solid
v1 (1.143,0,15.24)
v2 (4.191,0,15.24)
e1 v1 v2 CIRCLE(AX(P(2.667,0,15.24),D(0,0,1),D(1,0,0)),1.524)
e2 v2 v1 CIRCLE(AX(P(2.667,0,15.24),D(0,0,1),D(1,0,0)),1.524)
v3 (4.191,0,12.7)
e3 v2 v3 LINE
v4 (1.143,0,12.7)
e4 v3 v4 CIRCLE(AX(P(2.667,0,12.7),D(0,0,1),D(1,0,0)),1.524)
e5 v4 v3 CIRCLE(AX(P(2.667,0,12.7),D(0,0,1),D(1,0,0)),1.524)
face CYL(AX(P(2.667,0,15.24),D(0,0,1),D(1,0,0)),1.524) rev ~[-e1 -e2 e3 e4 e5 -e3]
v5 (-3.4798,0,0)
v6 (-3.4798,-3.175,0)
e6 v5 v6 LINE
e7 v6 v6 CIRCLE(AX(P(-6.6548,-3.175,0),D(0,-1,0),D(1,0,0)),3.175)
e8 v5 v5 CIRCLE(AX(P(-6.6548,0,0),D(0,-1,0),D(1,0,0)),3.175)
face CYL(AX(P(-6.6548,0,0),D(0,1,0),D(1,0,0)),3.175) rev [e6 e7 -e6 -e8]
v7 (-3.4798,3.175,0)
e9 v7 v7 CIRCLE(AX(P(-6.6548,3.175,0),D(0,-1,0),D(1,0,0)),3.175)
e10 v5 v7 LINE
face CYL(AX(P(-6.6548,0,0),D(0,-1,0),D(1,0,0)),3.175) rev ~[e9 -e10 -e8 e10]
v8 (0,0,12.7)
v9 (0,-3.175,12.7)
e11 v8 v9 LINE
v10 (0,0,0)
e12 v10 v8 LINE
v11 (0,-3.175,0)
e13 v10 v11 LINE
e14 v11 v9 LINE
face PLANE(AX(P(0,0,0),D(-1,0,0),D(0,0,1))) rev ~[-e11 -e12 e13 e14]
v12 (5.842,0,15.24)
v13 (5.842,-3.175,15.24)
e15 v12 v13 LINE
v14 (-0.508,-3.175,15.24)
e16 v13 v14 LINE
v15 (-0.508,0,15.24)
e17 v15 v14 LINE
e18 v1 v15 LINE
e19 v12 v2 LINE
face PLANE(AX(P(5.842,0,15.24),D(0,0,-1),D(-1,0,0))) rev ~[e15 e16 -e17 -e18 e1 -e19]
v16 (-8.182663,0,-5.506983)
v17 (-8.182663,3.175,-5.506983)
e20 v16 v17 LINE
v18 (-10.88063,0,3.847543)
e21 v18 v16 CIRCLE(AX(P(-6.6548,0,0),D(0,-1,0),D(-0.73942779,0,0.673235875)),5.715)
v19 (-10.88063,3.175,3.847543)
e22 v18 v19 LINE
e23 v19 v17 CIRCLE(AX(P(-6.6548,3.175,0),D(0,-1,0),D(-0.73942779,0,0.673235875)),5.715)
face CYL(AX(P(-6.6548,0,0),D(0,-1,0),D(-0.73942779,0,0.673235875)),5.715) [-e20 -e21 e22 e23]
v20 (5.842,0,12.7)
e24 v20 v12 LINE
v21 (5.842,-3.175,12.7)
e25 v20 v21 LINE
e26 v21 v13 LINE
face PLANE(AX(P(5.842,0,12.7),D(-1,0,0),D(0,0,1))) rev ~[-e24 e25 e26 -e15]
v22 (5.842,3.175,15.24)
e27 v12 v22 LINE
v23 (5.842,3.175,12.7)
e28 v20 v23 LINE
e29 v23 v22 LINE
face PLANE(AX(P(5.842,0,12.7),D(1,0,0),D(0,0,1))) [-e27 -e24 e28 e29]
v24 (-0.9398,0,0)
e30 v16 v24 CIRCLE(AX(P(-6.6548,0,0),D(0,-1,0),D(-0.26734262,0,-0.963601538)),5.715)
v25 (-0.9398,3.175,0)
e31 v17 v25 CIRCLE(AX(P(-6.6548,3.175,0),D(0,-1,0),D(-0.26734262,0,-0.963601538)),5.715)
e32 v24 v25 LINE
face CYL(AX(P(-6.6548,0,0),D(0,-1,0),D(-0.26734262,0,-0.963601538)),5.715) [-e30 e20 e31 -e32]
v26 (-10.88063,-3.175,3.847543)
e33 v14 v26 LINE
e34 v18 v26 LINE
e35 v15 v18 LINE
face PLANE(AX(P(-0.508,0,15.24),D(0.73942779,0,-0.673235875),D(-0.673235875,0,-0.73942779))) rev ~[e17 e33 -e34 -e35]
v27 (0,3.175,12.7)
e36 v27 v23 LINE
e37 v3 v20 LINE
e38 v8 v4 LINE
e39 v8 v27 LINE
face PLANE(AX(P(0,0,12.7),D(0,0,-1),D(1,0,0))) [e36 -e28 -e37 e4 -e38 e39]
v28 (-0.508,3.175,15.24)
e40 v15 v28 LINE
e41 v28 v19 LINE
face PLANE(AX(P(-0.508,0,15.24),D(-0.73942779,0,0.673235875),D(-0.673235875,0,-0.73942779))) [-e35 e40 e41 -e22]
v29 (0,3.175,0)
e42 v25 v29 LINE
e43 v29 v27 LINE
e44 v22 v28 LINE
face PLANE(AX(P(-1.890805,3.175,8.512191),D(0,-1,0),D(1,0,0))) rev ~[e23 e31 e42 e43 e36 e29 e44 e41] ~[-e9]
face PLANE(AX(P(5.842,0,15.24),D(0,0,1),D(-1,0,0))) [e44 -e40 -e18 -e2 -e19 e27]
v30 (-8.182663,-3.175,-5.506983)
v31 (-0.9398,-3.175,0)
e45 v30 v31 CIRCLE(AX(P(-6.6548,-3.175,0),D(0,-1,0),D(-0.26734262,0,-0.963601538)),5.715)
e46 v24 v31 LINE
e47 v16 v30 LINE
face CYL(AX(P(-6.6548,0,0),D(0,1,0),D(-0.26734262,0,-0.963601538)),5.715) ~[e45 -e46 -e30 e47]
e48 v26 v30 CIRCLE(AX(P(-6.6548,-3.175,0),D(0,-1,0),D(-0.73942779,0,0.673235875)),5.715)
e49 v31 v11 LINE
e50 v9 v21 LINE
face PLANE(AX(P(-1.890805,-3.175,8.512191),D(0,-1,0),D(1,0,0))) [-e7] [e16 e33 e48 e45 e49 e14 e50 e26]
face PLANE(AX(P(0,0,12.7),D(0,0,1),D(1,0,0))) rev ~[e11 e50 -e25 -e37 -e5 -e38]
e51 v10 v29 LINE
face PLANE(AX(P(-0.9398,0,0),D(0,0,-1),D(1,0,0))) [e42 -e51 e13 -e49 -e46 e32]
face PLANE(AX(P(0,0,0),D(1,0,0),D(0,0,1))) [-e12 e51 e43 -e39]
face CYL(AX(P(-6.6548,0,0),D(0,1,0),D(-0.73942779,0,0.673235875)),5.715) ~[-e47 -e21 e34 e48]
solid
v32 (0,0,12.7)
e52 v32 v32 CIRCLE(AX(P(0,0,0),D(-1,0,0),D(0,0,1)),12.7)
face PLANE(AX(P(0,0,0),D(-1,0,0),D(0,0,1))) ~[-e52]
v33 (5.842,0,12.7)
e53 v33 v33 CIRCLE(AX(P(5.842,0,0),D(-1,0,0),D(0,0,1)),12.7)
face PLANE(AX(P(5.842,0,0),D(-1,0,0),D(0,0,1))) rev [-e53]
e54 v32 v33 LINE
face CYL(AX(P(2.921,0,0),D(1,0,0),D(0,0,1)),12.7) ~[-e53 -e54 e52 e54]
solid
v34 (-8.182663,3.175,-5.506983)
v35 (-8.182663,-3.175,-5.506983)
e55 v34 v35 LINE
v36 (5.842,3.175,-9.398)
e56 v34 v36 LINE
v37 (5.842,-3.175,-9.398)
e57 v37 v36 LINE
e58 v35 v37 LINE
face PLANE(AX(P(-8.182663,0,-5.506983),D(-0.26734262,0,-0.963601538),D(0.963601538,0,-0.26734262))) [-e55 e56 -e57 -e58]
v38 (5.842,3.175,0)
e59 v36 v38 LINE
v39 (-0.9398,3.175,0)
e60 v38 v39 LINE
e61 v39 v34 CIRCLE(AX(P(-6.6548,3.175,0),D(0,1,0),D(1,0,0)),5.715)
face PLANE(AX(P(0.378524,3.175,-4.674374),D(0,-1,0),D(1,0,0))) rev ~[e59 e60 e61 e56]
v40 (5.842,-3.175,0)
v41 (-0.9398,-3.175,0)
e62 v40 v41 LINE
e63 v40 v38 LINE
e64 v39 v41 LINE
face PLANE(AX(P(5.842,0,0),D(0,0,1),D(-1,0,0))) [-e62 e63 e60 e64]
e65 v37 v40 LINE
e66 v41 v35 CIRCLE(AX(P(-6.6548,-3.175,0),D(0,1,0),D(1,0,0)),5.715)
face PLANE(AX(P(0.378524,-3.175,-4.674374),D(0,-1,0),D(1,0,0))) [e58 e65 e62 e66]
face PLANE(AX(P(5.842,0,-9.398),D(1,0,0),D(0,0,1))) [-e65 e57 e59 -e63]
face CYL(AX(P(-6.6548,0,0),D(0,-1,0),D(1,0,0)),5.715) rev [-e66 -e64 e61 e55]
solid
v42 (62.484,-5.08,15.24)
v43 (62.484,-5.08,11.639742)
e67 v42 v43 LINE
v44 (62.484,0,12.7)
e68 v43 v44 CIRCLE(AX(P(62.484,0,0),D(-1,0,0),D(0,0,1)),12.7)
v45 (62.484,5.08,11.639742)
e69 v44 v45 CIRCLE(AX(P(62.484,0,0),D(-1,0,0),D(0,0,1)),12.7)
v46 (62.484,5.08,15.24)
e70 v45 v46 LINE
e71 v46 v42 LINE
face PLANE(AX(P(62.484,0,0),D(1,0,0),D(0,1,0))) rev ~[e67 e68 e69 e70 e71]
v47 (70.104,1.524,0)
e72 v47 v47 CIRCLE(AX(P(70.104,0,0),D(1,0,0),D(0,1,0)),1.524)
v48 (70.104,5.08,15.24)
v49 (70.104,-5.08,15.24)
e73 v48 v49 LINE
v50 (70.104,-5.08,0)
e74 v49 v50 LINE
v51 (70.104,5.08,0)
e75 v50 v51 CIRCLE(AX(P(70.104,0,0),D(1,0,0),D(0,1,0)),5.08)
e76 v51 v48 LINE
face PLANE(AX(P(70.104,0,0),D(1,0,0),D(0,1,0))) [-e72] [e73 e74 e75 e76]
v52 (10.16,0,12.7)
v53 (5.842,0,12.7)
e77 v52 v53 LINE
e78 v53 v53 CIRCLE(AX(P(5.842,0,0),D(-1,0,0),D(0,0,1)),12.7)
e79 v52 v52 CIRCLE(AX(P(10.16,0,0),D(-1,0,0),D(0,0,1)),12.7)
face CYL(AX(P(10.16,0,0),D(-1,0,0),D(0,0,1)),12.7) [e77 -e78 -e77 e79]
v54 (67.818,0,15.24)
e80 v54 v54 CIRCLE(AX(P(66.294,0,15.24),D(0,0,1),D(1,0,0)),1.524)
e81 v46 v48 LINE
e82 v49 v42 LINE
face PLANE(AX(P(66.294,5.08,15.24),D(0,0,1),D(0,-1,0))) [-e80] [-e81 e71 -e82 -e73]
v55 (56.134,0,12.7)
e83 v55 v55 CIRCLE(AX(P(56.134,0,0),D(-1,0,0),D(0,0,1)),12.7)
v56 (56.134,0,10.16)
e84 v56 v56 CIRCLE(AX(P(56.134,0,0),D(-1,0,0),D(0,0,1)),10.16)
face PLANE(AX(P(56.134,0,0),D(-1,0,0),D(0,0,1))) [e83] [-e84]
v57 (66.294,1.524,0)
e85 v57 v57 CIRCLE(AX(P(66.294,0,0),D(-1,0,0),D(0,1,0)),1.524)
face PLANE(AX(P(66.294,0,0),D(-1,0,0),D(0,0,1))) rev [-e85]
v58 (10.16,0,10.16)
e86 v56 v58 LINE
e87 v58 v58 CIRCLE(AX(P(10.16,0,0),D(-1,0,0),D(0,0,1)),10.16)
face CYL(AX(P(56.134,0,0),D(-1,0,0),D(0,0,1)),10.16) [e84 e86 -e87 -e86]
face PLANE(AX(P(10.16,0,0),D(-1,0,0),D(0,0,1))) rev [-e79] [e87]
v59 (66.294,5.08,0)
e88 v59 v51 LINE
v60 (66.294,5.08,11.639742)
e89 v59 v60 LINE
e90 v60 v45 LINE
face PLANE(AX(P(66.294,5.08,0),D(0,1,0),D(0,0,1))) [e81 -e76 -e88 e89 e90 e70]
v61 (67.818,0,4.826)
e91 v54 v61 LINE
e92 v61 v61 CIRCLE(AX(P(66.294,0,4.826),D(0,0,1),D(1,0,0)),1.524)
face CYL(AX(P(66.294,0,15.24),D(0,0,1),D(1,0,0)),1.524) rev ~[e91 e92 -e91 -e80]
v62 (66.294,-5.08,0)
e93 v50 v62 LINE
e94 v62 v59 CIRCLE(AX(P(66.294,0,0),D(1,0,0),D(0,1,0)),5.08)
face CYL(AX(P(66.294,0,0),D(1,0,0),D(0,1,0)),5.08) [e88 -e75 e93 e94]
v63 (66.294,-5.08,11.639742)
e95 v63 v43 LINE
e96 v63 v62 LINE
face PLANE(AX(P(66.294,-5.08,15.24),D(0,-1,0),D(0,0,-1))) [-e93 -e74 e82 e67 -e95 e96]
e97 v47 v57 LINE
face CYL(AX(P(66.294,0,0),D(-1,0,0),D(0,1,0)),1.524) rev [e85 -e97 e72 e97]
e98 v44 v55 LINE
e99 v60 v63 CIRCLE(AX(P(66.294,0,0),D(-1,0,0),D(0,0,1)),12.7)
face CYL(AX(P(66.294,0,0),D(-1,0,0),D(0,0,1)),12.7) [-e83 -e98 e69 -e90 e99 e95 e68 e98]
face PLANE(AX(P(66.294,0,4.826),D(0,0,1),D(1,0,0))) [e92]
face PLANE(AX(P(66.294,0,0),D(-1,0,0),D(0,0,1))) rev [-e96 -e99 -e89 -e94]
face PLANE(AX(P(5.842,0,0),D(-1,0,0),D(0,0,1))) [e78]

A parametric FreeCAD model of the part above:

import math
import FreeCAD as App
import Part
import Sketcher

V = App.Vector
Q = App.Units.Quantity

doc = App.newDocument("Part")
body = doc.addObject("PartDesign::Body", "Body")

# Sketch on XZ plane
sketch1 = body.newObject("Sketcher::SketchObject", "Sketch")
sketch1.AttachmentSupport = (doc.getObject("XZ_Plane"), [""])
sketch1.MapMode = "FlatFace"
sketch1.addGeometry([
    Part.LineSegment(V(-0.9, 0, 0), V(0, 0, 0)),  # 0
    Part.LineSegment(V(0, 0, 0), V(0, 12.7, 0)),  # 1
    Part.LineSegment(V(0, 12.7, 0), V(5.8, 12.7, 0)),  # 2
    Part.LineSegment(V(5.8, 12.7, 0), V(5.8, 15.2, 0)),  # 3
    Part.LineSegment(V(5.8, 15.2, 0), V(-0.5, 15.2, 0)),  # 4
    Part.LineSegment(V(-0.5, 15.2, 0), V(-10.9, 3.8, 0)),  # 5
    Part.ArcOfCircle(Part.Circle(V(-6.7, 0, 0), V(0, 0, 1), 5.7), math.radians(138), math.radians(254)),  # 6
    Part.ArcOfCircle(Part.Circle(V(-6.7, 0, 0), V(0, 0, 1), 5.7), math.radians(-106), math.radians(0)),  # 7
    Part.Circle(V(-6.7, 0, 0), V(0, 0, 1), 3.2),  # 8
], False)
sketch1.addConstraint([
    Sketcher.Constraint("Coincident", 0, 2, 1, 1),
    Sketcher.Constraint("Coincident", 1, 2, 2, 1),
    Sketcher.Constraint("Coincident", 2, 2, 3, 1),
    Sketcher.Constraint("Coincident", 3, 2, 4, 1),
    Sketcher.Constraint("Coincident", 4, 2, 5, 1),
    Sketcher.Constraint("Tangent", 5, 2, 6, 1),
    Sketcher.Constraint("Tangent", 6, 2, 7, 1),
    Sketcher.Constraint("Coincident", 7, 2, 0, 1),
    Sketcher.Constraint("Horizontal", 0),
    Sketcher.Constraint("Vertical", 1),
    Sketcher.Constraint("Horizontal", 2),
    Sketcher.Constraint("Vertical", 3),
    Sketcher.Constraint("Horizontal", 4),
    Sketcher.Constraint("Coincident", 0, 2, -1, 1),
    Sketcher.Constraint("Coincident", 8, 3, 6, 3),
    Sketcher.Constraint("Equal", 6, 7),
    Sketcher.Constraint("PointOnObject", 6, 3, -1),
    Sketcher.Constraint("Diameter", 8, Q("0.25 in")),
    Sketcher.Constraint("DistanceY", 1, 1, 1, 2, Q("0.5 in")),
    Sketcher.Constraint("DistanceY", 3, 1, 3, 2, Q("0.1 in")),
    Sketcher.Constraint("Radius", 6, Q("0.225 in")),
    Sketcher.Constraint("DistanceX", 2, 1, 2, 2, Q("0.23 in")),
    Sketcher.Constraint("DistanceX", 4, 2, 4, 1, Q("0.25 in")),
    Sketcher.Constraint("DistanceX", 0, 1, 0, 2, Q("0.037 in")),
    Sketcher.Constraint("DistanceX", 6, 2, -1, 1, Q("8.182663 mm")),
])
pad1 = body.newObject("PartDesign::Pad", "Pad")
pad1.Profile = sketch1
pad1.Length = Q("0.25 in")
pad1.Midplane = True

# Sketch on XY plane
sketch2 = body.newObject("Sketcher::SketchObject", "Sketch001")
sketch2.AttachmentSupport = (doc.getObject("XY_Plane"), [""])
sketch2.MapMode = "FlatFace"
sketch2.AttachmentOffset = App.Placement(V(0, 0, 0.6 * 25.4), App.Rotation())
sketch2.addGeometry(Part.Circle(V(2.7, 0, 0), V(0, 0, 1), 1.5), False)
sketch2.addConstraint([
    Sketcher.Constraint("PointOnObject", 0, 3, -1),
    Sketcher.Constraint("Diameter", 0, Q("0.12 in")),
    Sketcher.Constraint("DistanceX", -1, 1, 0, 3, Q("0.105 in")),
])
pocket1 = body.newObject("PartDesign::Pocket", "Pocket")
pocket1.Profile = sketch2
pocket1.Length = Q("0.7 in")
body2 = doc.addObject("PartDesign::Body", "Body001")

# Sketch on XZ plane
sketch3 = body2.newObject("Sketcher::SketchObject", "Sketch002")
sketch3.AttachmentSupport = (doc.getObject("XZ_Plane001"), [""])
sketch3.MapMode = "FlatFace"
sketch3.addGeometry([
    Part.LineSegment(V(5.8, 12.7, 0), V(5.8, 0, 0)),  # 0
    Part.LineSegment(V(5.8, 0, 0), V(66.3, 0, 0)),  # 1
    Part.LineSegment(V(66.3, 0, 0), V(66.3, 12.7, 0)),  # 2
    Part.LineSegment(V(66.3, 12.7, 0), V(56.1, 12.7, 0)),  # 3
    Part.LineSegment(V(56.1, 12.7, 0), V(56.1, 10.2, 0)),  # 4
    Part.LineSegment(V(56.1, 10.2, 0), V(10.2, 10.2, 0)),  # 5
    Part.LineSegment(V(10.2, 10.2, 0), V(10.2, 12.7, 0)),  # 6
    Part.LineSegment(V(10.2, 12.7, 0), V(5.8, 12.7, 0)),  # 7
], False)
sketch3.addConstraint([
    Sketcher.Constraint("Coincident", 0, 2, 1, 1),
    Sketcher.Constraint("Coincident", 1, 2, 2, 1),
    Sketcher.Constraint("Coincident", 2, 2, 3, 1),
    Sketcher.Constraint("Coincident", 3, 2, 4, 1),
    Sketcher.Constraint("Coincident", 4, 2, 5, 1),
    Sketcher.Constraint("Coincident", 5, 2, 6, 1),
    Sketcher.Constraint("Coincident", 6, 2, 7, 1),
    Sketcher.Constraint("Coincident", 7, 2, 0, 1),
    Sketcher.Constraint("Vertical", 0),
    Sketcher.Constraint("Horizontal", 1),
    Sketcher.Constraint("Vertical", 2),
    Sketcher.Constraint("Horizontal", 3),
    Sketcher.Constraint("Vertical", 4),
    Sketcher.Constraint("Horizontal", 5),
    Sketcher.Constraint("Vertical", 6),
    Sketcher.Constraint("Horizontal", 7),
    Sketcher.Constraint("PointOnObject", 0, 2, -1),
    Sketcher.Constraint("Horizontal", 3, 2, 6, 2),
    Sketcher.Constraint("DistanceX", 3, 2, 3, 1, Q("0.4 in")),
    Sketcher.Constraint("DistanceY", 0, 2, 0, 1, Q("0.5 in")),
    Sketcher.Constraint("DistanceY", 4, 2, 4, 1, Q("0.1 in")),
    Sketcher.Constraint("DistanceX", 1, 1, 1, 2, Q("2.38 in")),
    Sketcher.Constraint("DistanceX", 5, 2, 5, 1, Q("1.81 in")),
    Sketcher.Constraint("DistanceX", -1, 1, 5, 2, Q("0.4 in")),
])
revolution = body2.newObject("PartDesign::Revolution", "Revolution")
revolution.Profile = sketch3
revolution.ReferenceAxis = (sketch3, ["H_Axis"])
revolution.Angle = 360

# Sketch on YZ plane
sketch4 = body2.newObject("Sketcher::SketchObject", "Sketch003")
sketch4.AttachmentSupport = (doc.getObject("YZ_Plane001"), [""])
sketch4.MapMode = "FlatFace"
sketch4.AttachmentOffset = App.Placement(V(0, 0, 2.61 * 25.4), App.Rotation())
sketch4.addGeometry([
    Part.ArcOfCircle(Part.Circle(V(0, 0, 0), V(0, 0, 1), 5.1), math.radians(180), math.radians(360)),  # 0
    Part.LineSegment(V(5.1, 0, 0), V(5.1, 15.2, 0)),  # 1
    Part.LineSegment(V(5.1, 15.2, 0), V(-5.1, 15.2, 0)),  # 2
    Part.LineSegment(V(-5.1, 15.2, 0), V(-5.1, 0, 0)),  # 3
    Part.Circle(V(0, 0, 0), V(0, 0, 1), 1.5),  # 4
], False)
sketch4.addConstraint([
    Sketcher.Constraint("Tangent", 0, 2, 1, 1),
    Sketcher.Constraint("Coincident", 1, 2, 2, 1),
    Sketcher.Constraint("Coincident", 2, 2, 3, 1),
    Sketcher.Constraint("Tangent", 3, 2, 0, 1),
    Sketcher.Constraint("Vertical", 1),
    Sketcher.Constraint("Horizontal", 2),
    Sketcher.Constraint("Vertical", 3),
    Sketcher.Constraint("Coincident", 0, 3, -1, 1),
    Sketcher.Constraint("Coincident", 4, 3, -1, 1),
    Sketcher.Constraint("Radius", 0, Q("0.2 in")),
    Sketcher.Constraint("Diameter", 4, Q("0.12 in")),
    Sketcher.Constraint("DistanceY", 1, 1, 1, 2, Q("0.6 in")),
])
pad2 = body2.newObject("PartDesign::Pad", "Pad001")
pad2.Profile = sketch4
pad2.Length = Q("0.3 in")
pad2.Midplane = True

# Sketch on XY plane
sketch5 = body2.newObject("Sketcher::SketchObject", "Sketch004")
sketch5.AttachmentSupport = (doc.getObject("XY_Plane001"), [""])
sketch5.MapMode = "FlatFace"
sketch5.AttachmentOffset = App.Placement(V(0, 0, 0.6 * 25.4), App.Rotation())
sketch5.addGeometry(Part.Circle(V(66.3, 0, 0), V(0, 0, 1), 1.5), False)
sketch5.addConstraint([
    Sketcher.Constraint("PointOnObject", 0, 3, -1),
    Sketcher.Constraint("Diameter", 0, Q("0.12 in")),
    Sketcher.Constraint("DistanceX", -1, 1, 0, 3, Q("2.61 in")),
])
pocket2 = body2.newObject("PartDesign::Pocket", "Pocket001")
pocket2.Profile = sketch5
pocket2.Length = Q("0.41 in")
body3 = doc.addObject("PartDesign::Body", "Body002")

# Sketch on XZ plane
sketch6 = body3.newObject("Sketcher::SketchObject", "Sketch005")
sketch6.AttachmentSupport = (doc.getObject("XZ_Plane002"), [""])
sketch6.MapMode = "FlatFace"
sketch6.addGeometry([
    Part.LineSegment(V(0, 13, 0), V(0, 0, 0)),
    Part.LineSegment(V(0, 0, 0), V(6, 0, 0)),
    Part.LineSegment(V(6, 0, 0), V(6, 13, 0)),
    Part.LineSegment(V(6, 13, 0), V(0, 13, 0)),
], False)
sketch6.addConstraint([
    Sketcher.Constraint("Coincident", 0, 2, 1, 1),
    Sketcher.Constraint("Coincident", 1, 2, 2, 1),
    Sketcher.Constraint("Coincident", 2, 2, 3, 1),
    Sketcher.Constraint("Coincident", 3, 2, 0, 1),
    Sketcher.Constraint("Vertical", 0),
    Sketcher.Constraint("Horizontal", 1),
    Sketcher.Constraint("Vertical", 2),
    Sketcher.Constraint("Horizontal", 3),
    Sketcher.Constraint("Coincident", 0, 2, -1, 1),
    Sketcher.Constraint("DistanceY", 0, 2, 0, 1, Q("0.5 in")),
    Sketcher.Constraint("DistanceX", 1, 1, 1, 2, Q("0.23 in")),
])
revolution2 = body3.newObject("PartDesign::Revolution", "Revolution001")
revolution2.Profile = sketch6
revolution2.ReferenceAxis = (sketch6, ["H_Axis"])
revolution2.Angle = 360
body4 = doc.addObject("PartDesign::Body", "Body003")

# Sketch on XZ plane
sketch7 = body4.newObject("Sketcher::SketchObject", "Sketch006")
sketch7.AttachmentSupport = (doc.getObject("XZ_Plane003"), [""])
sketch7.MapMode = "FlatFace"
sketch7.addGeometry([
    Part.LineSegment(V(6, 0, 0), V(-1, 0, 0)),
    Part.ArcOfCircle(Part.Circle(V(-7, 0, 0), V(0, 0, 1), 6), math.radians(-106), math.radians(0)),
    Part.LineSegment(V(-8, -6, 0), V(6, -9, 0)),
    Part.LineSegment(V(6, -9, 0), V(6, 0, 0)),
], False)
sketch7.addConstraint([
    Sketcher.Constraint("Coincident", 0, 2, 1, 2),
    Sketcher.Constraint("Tangent", 1, 1, 2, 1),
    Sketcher.Constraint("Coincident", 2, 2, 3, 1),
    Sketcher.Constraint("Coincident", 3, 2, 0, 1),
    Sketcher.Constraint("Horizontal", 0),
    Sketcher.Constraint("Vertical", 3),
    Sketcher.Constraint("PointOnObject", 1, 3, -1),
    Sketcher.Constraint("PointOnObject", 0, 2, -1),
    Sketcher.Constraint("Radius", 1, Q("0.225 in")),
    Sketcher.Constraint("DistanceY", 3, 1, 3, 2, Q("0.37 in")),
    Sketcher.Constraint("DistanceX", 0, 2, 0, 1, Q("0.267 in")),
    Sketcher.Constraint("DistanceX", -1, 1, 2, 2, Q("0.23 in")),
])
pad3 = body4.newObject("PartDesign::Pad", "Pad002")
pad3.Profile = sketch7
pad3.Length = Q("0.25 in")
pad3.Midplane = True

doc.recompute()
